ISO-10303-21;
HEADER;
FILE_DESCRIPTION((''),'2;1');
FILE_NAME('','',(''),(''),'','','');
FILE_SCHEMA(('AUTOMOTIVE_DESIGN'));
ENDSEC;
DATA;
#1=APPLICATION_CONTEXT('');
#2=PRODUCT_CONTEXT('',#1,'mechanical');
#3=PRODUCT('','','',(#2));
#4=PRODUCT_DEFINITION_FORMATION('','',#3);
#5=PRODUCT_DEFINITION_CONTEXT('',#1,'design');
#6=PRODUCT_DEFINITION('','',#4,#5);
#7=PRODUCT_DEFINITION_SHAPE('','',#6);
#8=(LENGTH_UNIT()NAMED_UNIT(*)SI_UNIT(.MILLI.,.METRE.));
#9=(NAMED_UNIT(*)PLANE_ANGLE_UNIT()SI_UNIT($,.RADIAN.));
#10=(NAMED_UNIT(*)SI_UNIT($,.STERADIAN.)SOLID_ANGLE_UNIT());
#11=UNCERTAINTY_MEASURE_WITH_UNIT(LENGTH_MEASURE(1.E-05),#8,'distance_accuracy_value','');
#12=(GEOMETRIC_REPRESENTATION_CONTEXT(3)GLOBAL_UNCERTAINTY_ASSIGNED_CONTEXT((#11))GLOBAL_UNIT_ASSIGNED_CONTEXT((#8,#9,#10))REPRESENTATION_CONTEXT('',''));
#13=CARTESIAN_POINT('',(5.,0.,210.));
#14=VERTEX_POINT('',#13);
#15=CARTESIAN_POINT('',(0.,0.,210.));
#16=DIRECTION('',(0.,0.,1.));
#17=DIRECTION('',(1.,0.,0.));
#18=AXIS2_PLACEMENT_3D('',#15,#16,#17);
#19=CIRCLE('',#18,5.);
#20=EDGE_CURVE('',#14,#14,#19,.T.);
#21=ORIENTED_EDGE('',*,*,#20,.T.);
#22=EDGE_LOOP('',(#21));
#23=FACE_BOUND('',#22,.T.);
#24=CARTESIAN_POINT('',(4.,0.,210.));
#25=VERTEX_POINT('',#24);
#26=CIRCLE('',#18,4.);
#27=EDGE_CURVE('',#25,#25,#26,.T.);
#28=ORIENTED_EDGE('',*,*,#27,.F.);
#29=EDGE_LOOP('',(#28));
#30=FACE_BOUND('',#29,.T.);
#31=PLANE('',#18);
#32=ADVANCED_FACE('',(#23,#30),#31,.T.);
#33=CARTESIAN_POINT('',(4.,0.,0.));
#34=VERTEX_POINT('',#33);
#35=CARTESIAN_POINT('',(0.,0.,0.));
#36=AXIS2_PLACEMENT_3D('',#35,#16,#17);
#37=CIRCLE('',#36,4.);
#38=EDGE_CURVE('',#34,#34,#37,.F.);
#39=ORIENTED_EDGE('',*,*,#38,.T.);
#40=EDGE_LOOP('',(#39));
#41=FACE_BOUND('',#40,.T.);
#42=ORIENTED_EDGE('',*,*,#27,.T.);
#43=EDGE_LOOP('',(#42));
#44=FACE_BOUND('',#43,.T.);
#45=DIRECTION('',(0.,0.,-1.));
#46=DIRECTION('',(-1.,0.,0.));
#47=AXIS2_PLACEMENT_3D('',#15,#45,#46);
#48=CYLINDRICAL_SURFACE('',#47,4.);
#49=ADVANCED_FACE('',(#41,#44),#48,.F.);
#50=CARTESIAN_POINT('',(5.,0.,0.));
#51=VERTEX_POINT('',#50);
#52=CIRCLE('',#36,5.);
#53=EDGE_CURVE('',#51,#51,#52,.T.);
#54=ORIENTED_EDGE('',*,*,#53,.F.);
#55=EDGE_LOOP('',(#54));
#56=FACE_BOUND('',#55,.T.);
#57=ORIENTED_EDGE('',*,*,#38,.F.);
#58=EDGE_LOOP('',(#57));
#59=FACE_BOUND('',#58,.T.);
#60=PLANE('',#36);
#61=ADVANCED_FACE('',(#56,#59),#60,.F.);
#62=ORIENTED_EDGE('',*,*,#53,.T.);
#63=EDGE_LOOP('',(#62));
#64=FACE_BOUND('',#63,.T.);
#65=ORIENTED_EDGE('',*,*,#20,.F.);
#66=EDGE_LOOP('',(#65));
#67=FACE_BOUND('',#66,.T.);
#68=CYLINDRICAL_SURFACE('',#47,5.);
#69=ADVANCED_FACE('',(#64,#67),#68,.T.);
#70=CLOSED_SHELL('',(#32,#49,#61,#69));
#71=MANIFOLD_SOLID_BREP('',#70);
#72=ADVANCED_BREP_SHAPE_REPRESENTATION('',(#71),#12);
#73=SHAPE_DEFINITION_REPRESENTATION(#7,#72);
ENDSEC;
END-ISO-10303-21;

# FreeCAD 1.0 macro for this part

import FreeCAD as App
import Part
import Sketcher

V = App.Vector
Q = App.Units.Quantity


def faces_at(feature, points):
    """Names of the faces that lie closest to the given points."""
    faces = feature.Shape.Faces
    near = lambda p: min(range(len(faces)), key=lambda i: faces[i].distToShape(Part.Vertex(*p))[0])
    return sorted({f"Face{near(p) + 1}" for p in points})

doc = App.newDocument("Part")
body = doc.addObject("PartDesign::Body", "Body")

sketch1 = doc.addObject("Sketcher::SketchObject", "Sketch")
body.addObject(sketch1)
sketch1.AttachmentSupport = (doc.XY_Plane, [""])
sketch1.MapMode = "FlatFace"
sketch1.addGeometry(Part.Circle(V(0, 0, 0), V(0, 0, 1), 5), False)
sketch1.addConstraint(Sketcher.Constraint("Coincident", 0, 3, -1, 1))
sketch1.addConstraint(Sketcher.Constraint("Diameter", 0, Q("10 mm")))
pad1 = doc.addObject("PartDesign::Pad", "Pad")
body.addObject(pad1)
pad1.Profile = sketch1
pad1.Length = 210
doc.recompute()

thickness = doc.addObject("PartDesign::Thickness", "Thickness")
body.addObject(thickness)
thickness.Base = (pad1, faces_at(pad1, [(0, 0, 210)]))
thickness.Value = 1
thickness.Reversed = True
thickness.Join = "Intersection"

sketch2 = doc.addObject("Sketcher::SketchObject", "Sketch001")
body.addObject(sketch2)
sketch2.AttachmentSupport = (doc.XY_Plane, [""])
sketch2.MapMode = "FlatFace"
sketch2.AttachmentOffset = App.Placement(V(0, 0, 1), App.Rotation())
sketch2.addGeometry(Part.Circle(V(0, 0, 0), V(0, 0, 1), 4), False)
sketch2.addConstraint(Sketcher.Constraint("Coincident", 0, 3, -1, 1))
sketch2.addConstraint(Sketcher.Constraint("Diameter", 0, Q("8 mm")))
pocket1 = doc.addObject("PartDesign::Pocket", "Pocket")
body.addObject(pocket1)
pocket1.Profile = sketch2
pocket1.Type = "UpToFirst"

doc.recompute()
